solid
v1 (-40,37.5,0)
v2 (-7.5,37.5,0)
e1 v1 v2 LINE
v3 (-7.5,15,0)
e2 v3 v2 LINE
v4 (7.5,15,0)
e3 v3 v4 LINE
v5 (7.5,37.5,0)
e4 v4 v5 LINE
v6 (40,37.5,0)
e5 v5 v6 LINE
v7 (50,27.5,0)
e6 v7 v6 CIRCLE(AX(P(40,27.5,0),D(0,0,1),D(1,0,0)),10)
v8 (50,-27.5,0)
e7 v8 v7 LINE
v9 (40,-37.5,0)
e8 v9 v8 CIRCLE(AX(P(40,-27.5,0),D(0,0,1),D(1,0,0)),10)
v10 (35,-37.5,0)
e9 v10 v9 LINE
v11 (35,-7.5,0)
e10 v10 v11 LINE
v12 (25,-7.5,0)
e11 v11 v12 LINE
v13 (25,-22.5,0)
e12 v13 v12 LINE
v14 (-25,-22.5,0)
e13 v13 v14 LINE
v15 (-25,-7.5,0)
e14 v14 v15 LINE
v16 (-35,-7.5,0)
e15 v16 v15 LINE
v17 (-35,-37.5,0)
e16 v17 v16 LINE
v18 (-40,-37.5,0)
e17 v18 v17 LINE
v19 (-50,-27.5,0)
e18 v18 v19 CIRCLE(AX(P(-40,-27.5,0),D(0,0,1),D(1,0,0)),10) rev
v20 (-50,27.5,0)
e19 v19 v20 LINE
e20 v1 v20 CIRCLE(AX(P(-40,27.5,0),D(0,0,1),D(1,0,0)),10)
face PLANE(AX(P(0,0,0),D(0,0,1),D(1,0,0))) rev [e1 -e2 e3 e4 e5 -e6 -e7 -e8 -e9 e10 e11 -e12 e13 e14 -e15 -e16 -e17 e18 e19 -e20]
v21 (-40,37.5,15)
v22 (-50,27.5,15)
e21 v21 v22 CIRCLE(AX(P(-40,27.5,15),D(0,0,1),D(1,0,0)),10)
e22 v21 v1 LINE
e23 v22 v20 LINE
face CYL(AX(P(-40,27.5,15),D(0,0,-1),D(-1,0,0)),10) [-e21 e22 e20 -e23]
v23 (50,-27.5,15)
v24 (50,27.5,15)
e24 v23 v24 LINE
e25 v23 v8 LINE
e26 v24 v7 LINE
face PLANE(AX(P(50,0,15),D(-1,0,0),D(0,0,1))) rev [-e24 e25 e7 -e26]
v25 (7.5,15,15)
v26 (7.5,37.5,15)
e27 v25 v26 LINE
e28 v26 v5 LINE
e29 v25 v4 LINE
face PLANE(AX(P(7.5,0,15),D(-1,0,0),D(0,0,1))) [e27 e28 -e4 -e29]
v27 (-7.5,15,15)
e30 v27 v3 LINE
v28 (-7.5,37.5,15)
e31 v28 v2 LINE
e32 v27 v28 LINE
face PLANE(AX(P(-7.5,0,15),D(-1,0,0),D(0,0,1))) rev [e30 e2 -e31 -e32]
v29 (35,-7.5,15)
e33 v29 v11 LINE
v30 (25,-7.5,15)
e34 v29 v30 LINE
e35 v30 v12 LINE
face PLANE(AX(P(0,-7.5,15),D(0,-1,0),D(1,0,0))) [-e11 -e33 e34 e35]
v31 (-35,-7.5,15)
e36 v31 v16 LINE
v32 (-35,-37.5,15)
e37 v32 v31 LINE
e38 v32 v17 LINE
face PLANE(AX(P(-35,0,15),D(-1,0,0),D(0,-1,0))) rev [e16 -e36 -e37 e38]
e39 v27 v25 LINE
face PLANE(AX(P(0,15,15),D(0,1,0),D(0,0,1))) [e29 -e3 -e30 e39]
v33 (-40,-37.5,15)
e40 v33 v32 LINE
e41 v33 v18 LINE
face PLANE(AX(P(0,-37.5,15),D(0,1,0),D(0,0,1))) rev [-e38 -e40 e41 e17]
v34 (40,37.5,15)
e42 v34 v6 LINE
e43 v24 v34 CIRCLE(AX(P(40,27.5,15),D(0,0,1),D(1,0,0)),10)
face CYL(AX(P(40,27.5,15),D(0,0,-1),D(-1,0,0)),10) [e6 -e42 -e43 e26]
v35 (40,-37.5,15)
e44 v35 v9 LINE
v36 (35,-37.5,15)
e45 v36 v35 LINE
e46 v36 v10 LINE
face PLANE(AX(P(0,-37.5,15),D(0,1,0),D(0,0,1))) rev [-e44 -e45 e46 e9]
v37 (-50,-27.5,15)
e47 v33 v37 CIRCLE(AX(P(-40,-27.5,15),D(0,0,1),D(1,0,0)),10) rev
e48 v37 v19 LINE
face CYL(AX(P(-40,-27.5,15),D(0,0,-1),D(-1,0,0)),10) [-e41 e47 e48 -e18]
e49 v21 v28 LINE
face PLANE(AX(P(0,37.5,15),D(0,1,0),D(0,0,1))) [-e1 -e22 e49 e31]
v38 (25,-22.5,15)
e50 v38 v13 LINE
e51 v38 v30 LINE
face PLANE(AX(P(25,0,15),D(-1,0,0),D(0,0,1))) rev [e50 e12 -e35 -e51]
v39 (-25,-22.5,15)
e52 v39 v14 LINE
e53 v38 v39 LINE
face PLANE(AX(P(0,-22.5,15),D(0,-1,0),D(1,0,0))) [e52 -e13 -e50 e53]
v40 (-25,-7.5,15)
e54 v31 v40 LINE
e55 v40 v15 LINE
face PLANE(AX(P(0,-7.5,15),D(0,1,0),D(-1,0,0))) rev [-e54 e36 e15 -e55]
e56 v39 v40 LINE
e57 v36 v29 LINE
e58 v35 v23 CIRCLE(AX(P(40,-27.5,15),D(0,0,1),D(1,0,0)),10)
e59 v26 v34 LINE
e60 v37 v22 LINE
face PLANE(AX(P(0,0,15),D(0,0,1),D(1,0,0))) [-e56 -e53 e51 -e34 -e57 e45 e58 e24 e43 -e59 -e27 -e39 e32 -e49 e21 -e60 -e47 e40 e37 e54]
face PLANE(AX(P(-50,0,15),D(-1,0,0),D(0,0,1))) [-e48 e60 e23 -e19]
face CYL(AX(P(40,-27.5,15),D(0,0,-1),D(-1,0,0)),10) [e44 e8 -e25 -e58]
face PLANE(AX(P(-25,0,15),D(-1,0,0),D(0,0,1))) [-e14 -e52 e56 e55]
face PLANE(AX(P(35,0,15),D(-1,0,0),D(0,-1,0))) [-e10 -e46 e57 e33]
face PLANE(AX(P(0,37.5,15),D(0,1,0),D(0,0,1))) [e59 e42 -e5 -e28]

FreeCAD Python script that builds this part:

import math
import FreeCAD as App
import Part
import Sketcher

doc = App.newDocument("Part")
body = doc.addObject("PartDesign::Body", "Body")

# Sketch on XY plane
sketch1 = body.newObject("Sketcher::SketchObject", "Sketch")
sketch1.AttachmentSupport = (doc.getObject("XY_Plane"), [""])
sketch1.MapMode = "FlatFace"
sketch1.addGeometry(Part.ArcOfCircle(Part.Circle(App.Vector(-40, -28, 0), App.Vector(0, 0, 1), 10), math.radians(180), math.radians(270)), False)
sketch1.addGeometry(Part.LineSegment(App.Vector(-40, -38, 0), App.Vector(-35, -38, 0)), False)
sketch1.addGeometry(Part.LineSegment(App.Vector(-35, -38, 0), App.Vector(-35, -8, 0)), False)
sketch1.addGeometry(Part.LineSegment(App.Vector(-35, -8, 0), App.Vector(-25, -8, 0)), False)
sketch1.addGeometry(Part.LineSegment(App.Vector(-25, -8, 0), App.Vector(-25, -22, 0)), False)
sketch1.addGeometry(Part.LineSegment(App.Vector(-25, -22, 0), App.Vector(25, -22, 0)), False)
sketch1.addGeometry(Part.LineSegment(App.Vector(25, -22, 0), App.Vector(25, -8, 0)), False)
sketch1.addGeometry(Part.LineSegment(App.Vector(25, -8, 0), App.Vector(35, -8, 0)), False)
sketch1.addGeometry(Part.LineSegment(App.Vector(35, -8, 0), App.Vector(35, -38, 0)), False)
sketch1.addGeometry(Part.LineSegment(App.Vector(35, -38, 0), App.Vector(40, -38, 0)), False)
sketch1.addGeometry(Part.ArcOfCircle(Part.Circle(App.Vector(40, -28, 0), App.Vector(0, 0, 1), 10), math.radians(-90), math.radians(0)), False)
sketch1.addGeometry(Part.LineSegment(App.Vector(50, -28, 0), App.Vector(50, 28, 0)), False)
sketch1.addGeometry(Part.ArcOfCircle(Part.Circle(App.Vector(40, 28, 0), App.Vector(0, 0, 1), 10), math.radians(0), math.radians(90)), False)
sketch1.addGeometry(Part.LineSegment(App.Vector(40, 38, 0), App.Vector(8, 38, 0)), False)
sketch1.addGeometry(Part.LineSegment(App.Vector(8, 38, 0), App.Vector(8, 15, 0)), False)
sketch1.addGeometry(Part.LineSegment(App.Vector(8, 15, 0), App.Vector(-8, 15, 0)), False)
sketch1.addGeometry(Part.LineSegment(App.Vector(-8, 15, 0), App.Vector(-8, 38, 0)), False)
sketch1.addGeometry(Part.LineSegment(App.Vector(-8, 38, 0), App.Vector(-40, 38, 0)), False)
sketch1.addGeometry(Part.ArcOfCircle(Part.Circle(App.Vector(-40, 28, 0), App.Vector(0, 0, 1), 10), math.radians(90), math.radians(180)), False)
sketch1.addGeometry(Part.LineSegment(App.Vector(-50, 28, 0), App.Vector(-50, -28, 0)), False)
sketch1.addConstraint(Sketcher.Constraint("Tangent", 0, 2, 1, 1))
sketch1.addConstraint(Sketcher.Constraint("Coincident", 1, 2, 2, 1))
sketch1.addConstraint(Sketcher.Constraint("Coincident", 2, 2, 3, 1))
sketch1.addConstraint(Sketcher.Constraint("Coincident", 3, 2, 4, 1))
sketch1.addConstraint(Sketcher.Constraint("Coincident", 4, 2, 5, 1))
sketch1.addConstraint(Sketcher.Constraint("Coincident", 5, 2, 6, 1))
sketch1.addConstraint(Sketcher.Constraint("Coincident", 6, 2, 7, 1))
sketch1.addConstraint(Sketcher.Constraint("Coincident", 7, 2, 8, 1))
sketch1.addConstraint(Sketcher.Constraint("Coincident", 8, 2, 9, 1))
sketch1.addConstraint(Sketcher.Constraint("Tangent", 9, 2, 10, 1))
sketch1.addConstraint(Sketcher.Constraint("Tangent", 10, 2, 11, 1))
sketch1.addConstraint(Sketcher.Constraint("Tangent", 11, 2, 12, 1))
sketch1.addConstraint(Sketcher.Constraint("Tangent", 12, 2, 13, 1))
sketch1.addConstraint(Sketcher.Constraint("Coincident", 13, 2, 14, 1))
sketch1.addConstraint(Sketcher.Constraint("Coincident", 14, 2, 15, 1))
sketch1.addConstraint(Sketcher.Constraint("Coincident", 15, 2, 16, 1))
sketch1.addConstraint(Sketcher.Constraint("Coincident", 16, 2, 17, 1))
sketch1.addConstraint(Sketcher.Constraint("Tangent", 17, 2, 18, 1))
sketch1.addConstraint(Sketcher.Constraint("Tangent", 18, 2, 19, 1))
sketch1.addConstraint(Sketcher.Constraint("Tangent", 19, 2, 0, 1))
sketch1.addConstraint(Sketcher.Constraint("Horizontal", 1))
sketch1.addConstraint(Sketcher.Constraint("Vertical", 2))
sketch1.addConstraint(Sketcher.Constraint("Horizontal", 3))
sketch1.addConstraint(Sketcher.Constraint("Vertical", 4))
sketch1.addConstraint(Sketcher.Constraint("Horizontal", 5))
sketch1.addConstraint(Sketcher.Constraint("Vertical", 6))
sketch1.addConstraint(Sketcher.Constraint("Horizontal", 7))
sketch1.addConstraint(Sketcher.Constraint("Vertical", 8))
sketch1.addConstraint(Sketcher.Constraint("Horizontal", 9))
sketch1.addConstraint(Sketcher.Constraint("Vertical", 11))
sketch1.addConstraint(Sketcher.Constraint("Horizontal", 13))
sketch1.addConstraint(Sketcher.Constraint("Vertical", 14))
sketch1.addConstraint(Sketcher.Constraint("Horizontal", 15))
sketch1.addConstraint(Sketcher.Constraint("Vertical", 16))
sketch1.addConstraint(Sketcher.Constraint("Horizontal", 17))
sketch1.addConstraint(Sketcher.Constraint("Vertical", 19))
sketch1.addConstraint(Sketcher.Constraint("Equal", 0, 10))
sketch1.addConstraint(Sketcher.Constraint("Equal", 10, 12))
sketch1.addConstraint(Sketcher.Constraint("Equal", 12, 18))
sketch1.addConstraint(Sketcher.Constraint("Symmetric", 0, 3, 12, 3, -1, 1))
sketch1.addConstraint(Sketcher.Constraint("Symmetric", 3, 2, 6, 2, -2))
sketch1.addConstraint(Sketcher.Constraint("Symmetric", 1, 2, 8, 2, -2))
sketch1.addConstraint(Sketcher.Constraint("Symmetric", 13, 2, 16, 2, -2))
sketch1.addConstraint(Sketcher.Constraint("Equal", 15, 4))
sketch1.addConstraint(Sketcher.Constraint("Radius", 0, 10.0))
sketch1.addConstraint(Sketcher.Constraint("DistanceX", 1, 1, 1, 2, 5.0))
sketch1.addConstraint(Sketcher.Constraint("DistanceX", 3, 1, 3, 2, 10.0))
sketch1.addConstraint(Sketcher.Constraint("DistanceX", 5, 1, 5, 2, 50.0))
sketch1.addConstraint(Sketcher.Constraint("DistanceX", 15, 2, 15, 1, 15.0))
sketch1.addConstraint(Sketcher.Constraint("DistanceY", 2, 1, 2, 2, 30.0))
sketch1.addConstraint(Sketcher.Constraint("DistanceY", 11, 1, 11, 2, 55.0))
sketch1.addConstraint(Sketcher.Constraint("DistanceY", 14, 2, 14, 1, 22.5))
pad1 = body.newObject("PartDesign::Pad", "Pad")
pad1.Profile = sketch1
pad1.Length = 15

doc.recompute()
